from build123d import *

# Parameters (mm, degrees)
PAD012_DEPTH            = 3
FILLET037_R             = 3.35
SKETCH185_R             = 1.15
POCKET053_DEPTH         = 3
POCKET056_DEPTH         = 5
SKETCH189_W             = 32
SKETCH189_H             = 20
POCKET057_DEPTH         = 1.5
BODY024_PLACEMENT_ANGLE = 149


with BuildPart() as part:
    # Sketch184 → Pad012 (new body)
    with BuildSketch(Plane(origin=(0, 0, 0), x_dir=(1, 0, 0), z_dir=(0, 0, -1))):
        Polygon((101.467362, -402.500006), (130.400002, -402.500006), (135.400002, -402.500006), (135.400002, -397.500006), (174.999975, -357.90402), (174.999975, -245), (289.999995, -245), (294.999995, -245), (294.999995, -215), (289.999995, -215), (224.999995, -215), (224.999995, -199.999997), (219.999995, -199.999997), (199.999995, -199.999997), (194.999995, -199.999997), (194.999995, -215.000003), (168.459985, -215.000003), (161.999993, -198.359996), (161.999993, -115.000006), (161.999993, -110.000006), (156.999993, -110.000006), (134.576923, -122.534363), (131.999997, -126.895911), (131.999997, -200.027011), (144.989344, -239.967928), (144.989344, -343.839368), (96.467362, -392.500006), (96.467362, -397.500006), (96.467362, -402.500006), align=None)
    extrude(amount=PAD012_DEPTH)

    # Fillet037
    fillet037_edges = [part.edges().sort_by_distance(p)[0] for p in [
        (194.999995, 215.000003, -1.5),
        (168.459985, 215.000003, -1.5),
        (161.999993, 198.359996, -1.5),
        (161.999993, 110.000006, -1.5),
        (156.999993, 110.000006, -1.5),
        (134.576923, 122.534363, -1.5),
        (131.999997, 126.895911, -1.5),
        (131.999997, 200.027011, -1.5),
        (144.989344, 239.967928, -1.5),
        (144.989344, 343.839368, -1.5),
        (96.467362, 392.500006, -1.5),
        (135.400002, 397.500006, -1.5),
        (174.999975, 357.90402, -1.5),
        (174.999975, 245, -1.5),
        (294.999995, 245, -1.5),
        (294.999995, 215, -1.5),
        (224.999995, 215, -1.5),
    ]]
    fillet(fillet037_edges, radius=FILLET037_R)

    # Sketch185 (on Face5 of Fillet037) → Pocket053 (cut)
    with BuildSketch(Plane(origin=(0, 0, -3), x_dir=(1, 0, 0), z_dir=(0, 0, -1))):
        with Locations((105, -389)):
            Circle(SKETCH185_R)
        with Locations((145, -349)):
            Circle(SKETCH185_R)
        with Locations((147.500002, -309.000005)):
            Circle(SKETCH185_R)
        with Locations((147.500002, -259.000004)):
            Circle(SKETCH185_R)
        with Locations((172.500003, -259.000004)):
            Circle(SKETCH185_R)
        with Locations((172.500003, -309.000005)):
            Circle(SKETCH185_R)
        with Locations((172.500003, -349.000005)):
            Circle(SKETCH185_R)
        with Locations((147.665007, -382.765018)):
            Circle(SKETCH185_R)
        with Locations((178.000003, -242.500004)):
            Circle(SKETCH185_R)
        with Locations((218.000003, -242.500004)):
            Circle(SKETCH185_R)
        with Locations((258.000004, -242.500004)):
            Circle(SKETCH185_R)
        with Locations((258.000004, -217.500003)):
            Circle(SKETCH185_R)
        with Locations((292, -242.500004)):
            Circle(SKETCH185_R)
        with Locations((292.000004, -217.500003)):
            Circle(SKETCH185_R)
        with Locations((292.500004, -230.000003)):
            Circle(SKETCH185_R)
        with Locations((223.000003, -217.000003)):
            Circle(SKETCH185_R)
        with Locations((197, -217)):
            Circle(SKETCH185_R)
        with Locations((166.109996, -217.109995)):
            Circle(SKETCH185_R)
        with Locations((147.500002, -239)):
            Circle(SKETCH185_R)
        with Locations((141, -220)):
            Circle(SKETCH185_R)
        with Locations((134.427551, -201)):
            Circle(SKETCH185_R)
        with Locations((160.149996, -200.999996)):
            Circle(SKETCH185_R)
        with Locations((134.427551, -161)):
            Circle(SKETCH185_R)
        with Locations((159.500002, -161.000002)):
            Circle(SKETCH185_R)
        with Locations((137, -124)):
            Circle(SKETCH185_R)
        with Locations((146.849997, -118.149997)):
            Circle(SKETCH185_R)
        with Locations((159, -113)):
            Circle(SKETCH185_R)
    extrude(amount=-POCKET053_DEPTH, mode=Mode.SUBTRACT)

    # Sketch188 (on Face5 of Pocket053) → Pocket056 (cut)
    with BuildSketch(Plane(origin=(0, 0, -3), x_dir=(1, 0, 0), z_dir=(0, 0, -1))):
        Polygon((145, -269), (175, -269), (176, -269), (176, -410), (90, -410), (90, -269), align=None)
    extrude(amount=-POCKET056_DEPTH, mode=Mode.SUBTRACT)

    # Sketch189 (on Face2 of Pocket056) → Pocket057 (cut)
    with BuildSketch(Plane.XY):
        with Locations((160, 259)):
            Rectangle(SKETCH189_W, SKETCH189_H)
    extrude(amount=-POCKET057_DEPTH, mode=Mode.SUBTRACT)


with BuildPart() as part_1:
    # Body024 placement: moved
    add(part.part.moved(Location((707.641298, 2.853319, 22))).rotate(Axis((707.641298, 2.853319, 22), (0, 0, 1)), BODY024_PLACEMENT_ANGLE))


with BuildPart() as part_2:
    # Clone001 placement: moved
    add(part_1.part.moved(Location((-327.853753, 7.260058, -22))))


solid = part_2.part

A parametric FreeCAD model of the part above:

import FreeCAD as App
import Part
import Sketcher

V = App.Vector


def edges_at(feature, points):
    """Names of the edges that pass closest to the given points."""
    edges = feature.Shape.Edges
    near = lambda p: min(range(len(edges)), key=lambda i: edges[i].distToShape(Part.Vertex(*p))[0])
    return sorted({f"Edge{near(p) + 1}" for p in points})


def add_polygon(sketch, points):
    """Adds a closed chain of lines whose ends are joined by coincident constraints."""
    first, n = sketch.GeometryCount, len(points)
    for a, b in zip(points, points[1:] + points[:1]):
        sketch.addGeometry(Part.LineSegment(App.Vector(*a, 0), App.Vector(*b, 0)), False)
    for i in range(n):
        sketch.addConstraint(Sketcher.Constraint("Coincident", first + i, 2, first + (i + 1) % n, 1))

doc = App.newDocument("Part")
params = doc.addObject("Spreadsheet::Sheet", "Params")
for row, (alias, value) in enumerate([
    ("sketch1_width", "70 mm"),
    ("sketch1_width2", "30 mm"),
    ("sketch1_width3", "5 mm"),
    ("sketch1_height", "10 mm"),
    ("sketch1_length", "56 mm"),
    ("pad1_length", "3 mm"),
    ("fillet_radius", "3.35 mm"),
    ("sketch2_diameter", "2.3 mm"),
    ("pocket1_length", "3 mm"),
    ("sketch3_width", "86 mm"),
    ("sketch3_height", "141 mm"),
    ("pocket2_length", "5 mm"),
    ("sketch4_width", "32 mm"),
    ("sketch4_height", "20 mm"),
    ("pocket3_length", "1.5 mm"),
], start=1):
    params.set(f"A{row}", alias)
    params.set(f"B{row}", "=" + value)
    params.setAlias(f"B{row}", alias)

body = doc.addObject("PartDesign::Body", "Body")

# Sketch on XY plane
sketch1 = body.newObject("Sketcher::SketchObject", "Sketch")
sketch1.AttachmentSupport = (doc.getObject("XY_Plane"), [""])
sketch1.MapMode = "FlatFace"
add_polygon(sketch1, [(135, 403), (135, 398), (175, 358), (175, 245), (295, 245), (295, 215), (225, 215), (225, 200), (195, 200), (195, 215), (168, 215), (162, 198), (162, 110), (157, 110), (135, 123), (132, 127), (132, 200), (145, 240), (145, 344), (96, 393), (96, 403)])  # lines 0-20
sketch1.addConstraint([
    Sketcher.Constraint("Vertical", 0),
    Sketcher.Constraint("Vertical", 2),
    Sketcher.Constraint("Horizontal", 3),
    Sketcher.Constraint("Vertical", 4),
    Sketcher.Constraint("Horizontal", 5),
    Sketcher.Constraint("Vertical", 6),
    Sketcher.Constraint("Horizontal", 7),
    Sketcher.Constraint("Vertical", 8),
    Sketcher.Constraint("Horizontal", 9),
    Sketcher.Constraint("Vertical", 11),
    Sketcher.Constraint("Horizontal", 12),
    Sketcher.Constraint("Vertical", 15),
    Sketcher.Constraint("Vertical", 17),
    Sketcher.Constraint("Vertical", 19),
    Sketcher.Constraint("Horizontal", 20),
    Sketcher.Constraint("Equal", 12, 0),
    Sketcher.Constraint("Equal", 7, 4),
    Sketcher.Constraint("DistanceX", 5, 2, 5, 1, 70.0),
    Sketcher.Constraint("DistanceX", 7, 2, 7, 1, 30.0),
    Sketcher.Constraint("DistanceX", 12, 2, 12, 1, 5.0),
    Sketcher.Constraint("DistanceY", 19, 1, 19, 2, 10.0),
    Sketcher.Constraint("Distance", 1, 56.0),
    Sketcher.Constraint("Distance", 16, 42.0),
    Sketcher.Constraint("DistanceY", -1, 1, 2, 2, 245.0),
    Sketcher.Constraint("DistanceX", 15, 2, 7, 2, 62.999998),
    Sketcher.Constraint("DistanceX", -1, 1, 0, 2, 135.400002),
    Sketcher.Constraint("DistanceY", 10, 2, 7, 2, 1.640001),
    Sketcher.Constraint("DistanceY", 15, 1, 15, 2, 73.1311),
    Sketcher.Constraint("Distance", 13, 25.6886),
    Sketcher.Constraint("DistanceX", 3, 1, 3, 2, 120.00002),
    Sketcher.Constraint("DistanceX", 9, 2, 9, 1, 26.54001),
    Sketcher.Constraint("DistanceX", 20, 1, 20, 2, 38.93264),
    Sketcher.Constraint("DistanceY", 2, 2, 2, 1, 112.90402),
    Sketcher.Constraint("DistanceY", 11, 2, 11, 1, 88.35999),
    Sketcher.Constraint("DistanceY", 17, 1, 17, 2, 103.87144),
    Sketcher.Constraint("Distance", 14, 5.06593),
    Sketcher.Constraint("Distance", 18, 68.71856),
    Sketcher.Constraint("DistanceY", 6, 2, 6, 1, 15.000003),
    Sketcher.Constraint("DistanceY", 8, 1, 8, 2, 15.000006),
    Sketcher.Constraint("DistanceY", -1, 1, 14, 2, 126.895911),
    Sketcher.Constraint("DistanceX", 10, 2, 9, 2, 6.459992),
    Sketcher.Constraint("DistanceX", 0, 2, 17, 2, 9.589342),
])
sketch1.setExpression("Constraints[38]", "Params.sketch1_width")
sketch1.setExpression("Constraints[39]", "Params.sketch1_width2")
sketch1.setExpression("Constraints[40]", "Params.sketch1_width3")
sketch1.setExpression("Constraints[41]", "Params.sketch1_height")
sketch1.setExpression("Constraints[42]", "Params.sketch1_length")
pad1 = body.newObject("PartDesign::Pad", "Pad")
pad1.Profile = sketch1
pad1.setExpression("Length", "Params.pad1_length")
pad1.Reversed = True
doc.recompute()

fillet = body.newObject("PartDesign::Fillet", "Fillet")
fillet.Base = (pad1, edges_at(pad1, [
    (195, 215, -1.5),
    (168.46, 215, -1.5),
    (162, 198.36, -1.5),
    (162, 110, -1.5),
    (157, 110, -1.5),
    (134.577, 122.534, -1.5),
    (132, 126.896, -1.5),
    (132, 200.027, -1.5),
    (144.989, 239.968, -1.5),
    (144.989, 343.839, -1.5),
    (96.467, 392.5, -1.5),
    (135.4, 397.5, -1.5),
    (175, 357.904, -1.5),
    (175, 245, -1.5),
    (295, 245, -1.5),
    (295, 215, -1.5),
    (225, 215, -1.5),
]))
fillet.setExpression("Radius", "Params.fillet_radius")

# Sketch on XY plane
sketch2 = body.newObject("Sketcher::SketchObject", "Sketch001")
sketch2.AttachmentSupport = (doc.getObject("XY_Plane"), [""])
sketch2.MapMode = "FlatFace"
sketch2.AttachmentOffset = App.Placement(V(0, 0, -3), App.Rotation())
sketch2.addGeometry([
    Part.Circle(V(105, 389, 0), V(0, 0, 1), 1.1),  # 0
    Part.Circle(V(145, 349, 0), V(0, 0, 1), 1.1),  # 1
    Part.Circle(V(147.5, 309, 0), V(0, 0, 1), 1.1),  # 2
    Part.Circle(V(147.5, 259, 0), V(0, 0, 1), 1.1),  # 3
    Part.Circle(V(172.5, 259, 0), V(0, 0, 1), 1.1),  # 4
    Part.Circle(V(172.5, 309, 0), V(0, 0, 1), 1.1),  # 5
    Part.Circle(V(172.5, 349, 0), V(0, 0, 1), 1.1),  # 6
    Part.Circle(V(147.7, 382.8, 0), V(0, 0, 1), 1.1),  # 7
    Part.Circle(V(178, 242.5, 0), V(0, 0, 1), 1.1),  # 8
    Part.Circle(V(218, 242.5, 0), V(0, 0, 1), 1.1),  # 9
    Part.Circle(V(258, 242.5, 0), V(0, 0, 1), 1.1),  # 10
    Part.Circle(V(258, 217.5, 0), V(0, 0, 1), 1.1),  # 11
    Part.Circle(V(292, 242.5, 0), V(0, 0, 1), 1.1),  # 12
    Part.Circle(V(292, 217.5, 0), V(0, 0, 1), 1.1),  # 13
    Part.Circle(V(292.5, 230, 0), V(0, 0, 1), 1.1),  # 14
    Part.Circle(V(223, 217, 0), V(0, 0, 1), 1.1),  # 15
    Part.Circle(V(197, 217, 0), V(0, 0, 1), 1.1),  # 16
    Part.Circle(V(166.1, 217.1, 0), V(0, 0, 1), 1.1),  # 17
    Part.Circle(V(147.5, 239, 0), V(0, 0, 1), 1.1),  # 18
    Part.Circle(V(141, 220, 0), V(0, 0, 1), 1.1),  # 19
    Part.Circle(V(134.4, 201, 0), V(0, 0, 1), 1.1),  # 20
    Part.Circle(V(160.1, 201, 0), V(0, 0, 1), 1.1),  # 21
    Part.Circle(V(134.4, 161, 0), V(0, 0, 1), 1.1),  # 22
    Part.Circle(V(159.5, 161, 0), V(0, 0, 1), 1.1),  # 23
    Part.Circle(V(137, 124, 0), V(0, 0, 1), 1.1),  # 24
    Part.Circle(V(146.8, 118.1, 0), V(0, 0, 1), 1.1),  # 25
    Part.Circle(V(159, 113, 0), V(0, 0, 1), 1.1),  # 26
], False)
sketch2.addConstraint([
    Sketcher.Constraint("Equal", 0, 1),
    Sketcher.Constraint("Equal", 1, 2),
    Sketcher.Constraint("Equal", 2, 3),
    Sketcher.Constraint("Equal", 3, 4),
    Sketcher.Constraint("Equal", 4, 5),
    Sketcher.Constraint("Equal", 5, 6),
    Sketcher.Constraint("Equal", 6, 7),
    Sketcher.Constraint("Equal", 7, 8),
    Sketcher.Constraint("Equal", 8, 9),
    Sketcher.Constraint("Equal", 9, 10),
    Sketcher.Constraint("Equal", 10, 11),
    Sketcher.Constraint("Equal", 11, 12),
    Sketcher.Constraint("Equal", 12, 13),
    Sketcher.Constraint("Equal", 13, 14),
    Sketcher.Constraint("Equal", 14, 15),
    Sketcher.Constraint("Equal", 15, 16),
    Sketcher.Constraint("Equal", 16, 17),
    Sketcher.Constraint("Equal", 17, 18),
    Sketcher.Constraint("Equal", 18, 19),
    Sketcher.Constraint("Equal", 19, 20),
    Sketcher.Constraint("Equal", 20, 21),
    Sketcher.Constraint("Equal", 21, 22),
    Sketcher.Constraint("Equal", 22, 23),
    Sketcher.Constraint("Equal", 23, 24),
    Sketcher.Constraint("Equal", 24, 25),
    Sketcher.Constraint("Equal", 25, 26),
    Sketcher.Constraint("Horizontal", 3, 3, 4, 3),
    Sketcher.Constraint("Horizontal", 2, 3, 5, 3),
    Sketcher.Constraint("Horizontal", 8, 3, 9, 3),
    Sketcher.Constraint("Horizontal", 9, 3, 10, 3),
    Sketcher.Constraint("Horizontal", 10, 3, 12, 3),
    Sketcher.Constraint("Horizontal", 11, 3, 13, 3),
    Sketcher.Constraint("Horizontal", 22, 3, 23, 3),
    Sketcher.Constraint("Vertical", 2, 3, 3, 3),
    Sketcher.Constraint("Vertical", 4, 3, 5, 3),
    Sketcher.Constraint("Vertical", 5, 3, 6, 3),
    Sketcher.Constraint("Vertical", 10, 3, 11, 3),
    Sketcher.Constraint("Vertical", 3, 3, 18, 3),
    Sketcher.Constraint("Vertical", 20, 3, 22, 3),
    Sketcher.Constraint("Diameter", 0, 2.3),
    Sketcher.Constraint("DistanceX", -1, 1, 0, 3, 105.0),
    Sketcher.Constraint("DistanceY", -1, 1, 0, 3, 389.0),
    Sketcher.Constraint("DistanceX", -1, 1, 1, 3, 145.0),
    Sketcher.Constraint("DistanceY", -1, 1, 1, 3, 349.0),
    Sketcher.Constraint("DistanceX", -1, 1, 12, 3, 292.0),
    Sketcher.Constraint("DistanceX", -1, 1, 16, 3, 197.0),
    Sketcher.Constraint("DistanceY", -1, 1, 16, 3, 217.0),
    Sketcher.Constraint("DistanceY", -1, 1, 18, 3, 239.0),
    Sketcher.Constraint("DistanceX", -1, 1, 19, 3, 141.0),
    Sketcher.Constraint("DistanceY", -1, 1, 19, 3, 220.0),
    Sketcher.Constraint("DistanceY", -1, 1, 20, 3, 201.0),
    Sketcher.Constraint("DistanceY", -1, 1, 22, 3, 161.0),
    Sketcher.Constraint("DistanceX", -1, 1, 24, 3, 137.0),
    Sketcher.Constraint("DistanceY", -1, 1, 24, 3, 124.0),
    Sketcher.Constraint("DistanceX", -1, 1, 26, 3, 159.0),
    Sketcher.Constraint("DistanceY", -1, 1, 26, 3, 113.0),
    Sketcher.Constraint("DistanceY", 3, 3, 2, 3, 50.000001),
    Sketcher.Constraint("DistanceX", 3, 3, 4, 3, 25.000001),
    Sketcher.Constraint("DistanceY", 5, 3, 6, 3, 40.0),
    Sketcher.Constraint("DistanceX", 8, 3, 9, 3, 40.0),
    Sketcher.Constraint("DistanceX", 9, 3, 10, 3, 40.000001),
    Sketcher.Constraint("DistanceY", 11, 3, 10, 3, 25.000001),
    Sketcher.Constraint("DistanceX", 11, 3, 13, 3, 34.0),
    Sketcher.Constraint("DistanceX", 9, 3, 15, 3, 5.0),
    Sketcher.Constraint("DistanceY", 15, 3, 4, 3, 42.000001),
    Sketcher.Constraint("DistanceX", -1, 1, 2, 3, 147.500002),
    Sketcher.Constraint("DistanceX", -1, 1, 23, 3, 159.500002),
    Sketcher.Constraint("DistanceX", 4, 3, 8, 3, 5.5),
    Sketcher.Constraint("DistanceY", 8, 3, 4, 3, 16.5),
    Sketcher.Constraint("DistanceX", 13, 3, 14, 3, 0.5),
    Sketcher.Constraint("DistanceY", 13, 3, 14, 3, 12.5),
    Sketcher.Constraint("DistanceX", 25, 3, 21, 3, 13.299999),
    Sketcher.Constraint("DistanceX", 21, 3, 17, 3, 5.96),
    Sketcher.Constraint("DistanceY", 21, 3, 17, 3, 16.109999),
    Sketcher.Constraint("DistanceY", 25, 3, 21, 3, 82.849999),
    Sketcher.Constraint("DistanceY", -1, 1, 7, 3, 382.765018),
    Sketcher.Constraint("DistanceX", -1, 1, 20, 3, 134.427551),
    Sketcher.Constraint("DistanceY", 17, 3, 8, 3, 25.390009),
    Sketcher.Constraint("DistanceY", -1, 1, 2, 3, 309.000005),
    Sketcher.Constraint("DistanceX", -1, 1, 7, 3, 147.665007),
    Sketcher.Constraint("DistanceX", -1, 1, 17, 3, 166.109996),
])
sketch2.setExpression("Constraints[39]", "Params.sketch2_diameter")
pocket1 = body.newObject("PartDesign::Pocket", "Pocket")
pocket1.Profile = sketch2
pocket1.setExpression("Length", "Params.pocket1_length")
pocket1.Reversed = True

# Sketch on XY plane
sketch3 = body.newObject("Sketcher::SketchObject", "Sketch002")
sketch3.AttachmentSupport = (doc.getObject("XY_Plane"), [""])
sketch3.MapMode = "FlatFace"
sketch3.AttachmentOffset = App.Placement(V(0, 0, -3), App.Rotation())
add_polygon(sketch3, [(176, 269), (90, 269), (90, 410), (176, 410)])  # lines 0-3
sketch3.addConstraint([
    Sketcher.Constraint("Horizontal", 0),
    Sketcher.Constraint("Vertical", 1),
    Sketcher.Constraint("Horizontal", 2),
    Sketcher.Constraint("Vertical", 3),
    Sketcher.Constraint("DistanceX", 0, 2, 0, 1, 86.0),
    Sketcher.Constraint("DistanceY", 1, 1, 1, 2, 141.0),
    Sketcher.Constraint("DistanceX", -1, 1, 0, 2, 90.0),
    Sketcher.Constraint("DistanceY", -1, 1, 0, 2, 269.0),
])
sketch3.setExpression("Constraints[8]", "Params.sketch3_width")
sketch3.setExpression("Constraints[9]", "Params.sketch3_height")
pocket2 = body.newObject("PartDesign::Pocket", "Pocket001")
pocket2.Profile = sketch3
pocket2.setExpression("Length", "Params.pocket2_length")
pocket2.Reversed = True

# Sketch on XY plane
sketch4 = body.newObject("Sketcher::SketchObject", "Sketch003")
sketch4.AttachmentSupport = (doc.getObject("XY_Plane"), [""])
sketch4.MapMode = "FlatFace"
add_polygon(sketch4, [(144, 269), (144, 249), (176, 249), (176, 269)])  # lines 0-3
sketch4.addConstraint([
    Sketcher.Constraint("Vertical", 0),
    Sketcher.Constraint("Horizontal", 1),
    Sketcher.Constraint("Vertical", 2),
    Sketcher.Constraint("Horizontal", 3),
    Sketcher.Constraint("DistanceX", 1, 1, 1, 2, 32.0),
    Sketcher.Constraint("DistanceY", 0, 2, 0, 1, 20.0),
    Sketcher.Constraint("DistanceX", -1, 1, 0, 2, 144.0),
    Sketcher.Constraint("DistanceY", -1, 1, 0, 2, 249.0),
])
sketch4.setExpression("Constraints[8]", "Params.sketch4_width")
sketch4.setExpression("Constraints[9]", "Params.sketch4_height")
pocket3 = body.newObject("PartDesign::Pocket", "Pocket002")
pocket3.Profile = sketch4
pocket3.setExpression("Length", "Params.pocket3_length")
body2 = doc.addObject("PartDesign::Body", "Body001")
doc.recompute()

body.Placement = App.Placement(V(707.641298, 2.853319, 22), App.Rotation(V(0, 0, 1), 149))
boolean = body2.newObject("PartDesign::Boolean", "Boolean")
boolean.Type = "Fuse"
boolean.addObjects([body])
body3 = doc.addObject("PartDesign::Body", "Body002")
doc.recompute()

body2.Placement = App.Placement(V(-327.853753, 7.260058, -22), App.Rotation(V(0, 0, 1), 0))
boolean2 = body3.newObject("PartDesign::Boolean", "Boolean001")
boolean2.Type = "Fuse"
boolean2.addObjects([body2])

doc.recompute()
